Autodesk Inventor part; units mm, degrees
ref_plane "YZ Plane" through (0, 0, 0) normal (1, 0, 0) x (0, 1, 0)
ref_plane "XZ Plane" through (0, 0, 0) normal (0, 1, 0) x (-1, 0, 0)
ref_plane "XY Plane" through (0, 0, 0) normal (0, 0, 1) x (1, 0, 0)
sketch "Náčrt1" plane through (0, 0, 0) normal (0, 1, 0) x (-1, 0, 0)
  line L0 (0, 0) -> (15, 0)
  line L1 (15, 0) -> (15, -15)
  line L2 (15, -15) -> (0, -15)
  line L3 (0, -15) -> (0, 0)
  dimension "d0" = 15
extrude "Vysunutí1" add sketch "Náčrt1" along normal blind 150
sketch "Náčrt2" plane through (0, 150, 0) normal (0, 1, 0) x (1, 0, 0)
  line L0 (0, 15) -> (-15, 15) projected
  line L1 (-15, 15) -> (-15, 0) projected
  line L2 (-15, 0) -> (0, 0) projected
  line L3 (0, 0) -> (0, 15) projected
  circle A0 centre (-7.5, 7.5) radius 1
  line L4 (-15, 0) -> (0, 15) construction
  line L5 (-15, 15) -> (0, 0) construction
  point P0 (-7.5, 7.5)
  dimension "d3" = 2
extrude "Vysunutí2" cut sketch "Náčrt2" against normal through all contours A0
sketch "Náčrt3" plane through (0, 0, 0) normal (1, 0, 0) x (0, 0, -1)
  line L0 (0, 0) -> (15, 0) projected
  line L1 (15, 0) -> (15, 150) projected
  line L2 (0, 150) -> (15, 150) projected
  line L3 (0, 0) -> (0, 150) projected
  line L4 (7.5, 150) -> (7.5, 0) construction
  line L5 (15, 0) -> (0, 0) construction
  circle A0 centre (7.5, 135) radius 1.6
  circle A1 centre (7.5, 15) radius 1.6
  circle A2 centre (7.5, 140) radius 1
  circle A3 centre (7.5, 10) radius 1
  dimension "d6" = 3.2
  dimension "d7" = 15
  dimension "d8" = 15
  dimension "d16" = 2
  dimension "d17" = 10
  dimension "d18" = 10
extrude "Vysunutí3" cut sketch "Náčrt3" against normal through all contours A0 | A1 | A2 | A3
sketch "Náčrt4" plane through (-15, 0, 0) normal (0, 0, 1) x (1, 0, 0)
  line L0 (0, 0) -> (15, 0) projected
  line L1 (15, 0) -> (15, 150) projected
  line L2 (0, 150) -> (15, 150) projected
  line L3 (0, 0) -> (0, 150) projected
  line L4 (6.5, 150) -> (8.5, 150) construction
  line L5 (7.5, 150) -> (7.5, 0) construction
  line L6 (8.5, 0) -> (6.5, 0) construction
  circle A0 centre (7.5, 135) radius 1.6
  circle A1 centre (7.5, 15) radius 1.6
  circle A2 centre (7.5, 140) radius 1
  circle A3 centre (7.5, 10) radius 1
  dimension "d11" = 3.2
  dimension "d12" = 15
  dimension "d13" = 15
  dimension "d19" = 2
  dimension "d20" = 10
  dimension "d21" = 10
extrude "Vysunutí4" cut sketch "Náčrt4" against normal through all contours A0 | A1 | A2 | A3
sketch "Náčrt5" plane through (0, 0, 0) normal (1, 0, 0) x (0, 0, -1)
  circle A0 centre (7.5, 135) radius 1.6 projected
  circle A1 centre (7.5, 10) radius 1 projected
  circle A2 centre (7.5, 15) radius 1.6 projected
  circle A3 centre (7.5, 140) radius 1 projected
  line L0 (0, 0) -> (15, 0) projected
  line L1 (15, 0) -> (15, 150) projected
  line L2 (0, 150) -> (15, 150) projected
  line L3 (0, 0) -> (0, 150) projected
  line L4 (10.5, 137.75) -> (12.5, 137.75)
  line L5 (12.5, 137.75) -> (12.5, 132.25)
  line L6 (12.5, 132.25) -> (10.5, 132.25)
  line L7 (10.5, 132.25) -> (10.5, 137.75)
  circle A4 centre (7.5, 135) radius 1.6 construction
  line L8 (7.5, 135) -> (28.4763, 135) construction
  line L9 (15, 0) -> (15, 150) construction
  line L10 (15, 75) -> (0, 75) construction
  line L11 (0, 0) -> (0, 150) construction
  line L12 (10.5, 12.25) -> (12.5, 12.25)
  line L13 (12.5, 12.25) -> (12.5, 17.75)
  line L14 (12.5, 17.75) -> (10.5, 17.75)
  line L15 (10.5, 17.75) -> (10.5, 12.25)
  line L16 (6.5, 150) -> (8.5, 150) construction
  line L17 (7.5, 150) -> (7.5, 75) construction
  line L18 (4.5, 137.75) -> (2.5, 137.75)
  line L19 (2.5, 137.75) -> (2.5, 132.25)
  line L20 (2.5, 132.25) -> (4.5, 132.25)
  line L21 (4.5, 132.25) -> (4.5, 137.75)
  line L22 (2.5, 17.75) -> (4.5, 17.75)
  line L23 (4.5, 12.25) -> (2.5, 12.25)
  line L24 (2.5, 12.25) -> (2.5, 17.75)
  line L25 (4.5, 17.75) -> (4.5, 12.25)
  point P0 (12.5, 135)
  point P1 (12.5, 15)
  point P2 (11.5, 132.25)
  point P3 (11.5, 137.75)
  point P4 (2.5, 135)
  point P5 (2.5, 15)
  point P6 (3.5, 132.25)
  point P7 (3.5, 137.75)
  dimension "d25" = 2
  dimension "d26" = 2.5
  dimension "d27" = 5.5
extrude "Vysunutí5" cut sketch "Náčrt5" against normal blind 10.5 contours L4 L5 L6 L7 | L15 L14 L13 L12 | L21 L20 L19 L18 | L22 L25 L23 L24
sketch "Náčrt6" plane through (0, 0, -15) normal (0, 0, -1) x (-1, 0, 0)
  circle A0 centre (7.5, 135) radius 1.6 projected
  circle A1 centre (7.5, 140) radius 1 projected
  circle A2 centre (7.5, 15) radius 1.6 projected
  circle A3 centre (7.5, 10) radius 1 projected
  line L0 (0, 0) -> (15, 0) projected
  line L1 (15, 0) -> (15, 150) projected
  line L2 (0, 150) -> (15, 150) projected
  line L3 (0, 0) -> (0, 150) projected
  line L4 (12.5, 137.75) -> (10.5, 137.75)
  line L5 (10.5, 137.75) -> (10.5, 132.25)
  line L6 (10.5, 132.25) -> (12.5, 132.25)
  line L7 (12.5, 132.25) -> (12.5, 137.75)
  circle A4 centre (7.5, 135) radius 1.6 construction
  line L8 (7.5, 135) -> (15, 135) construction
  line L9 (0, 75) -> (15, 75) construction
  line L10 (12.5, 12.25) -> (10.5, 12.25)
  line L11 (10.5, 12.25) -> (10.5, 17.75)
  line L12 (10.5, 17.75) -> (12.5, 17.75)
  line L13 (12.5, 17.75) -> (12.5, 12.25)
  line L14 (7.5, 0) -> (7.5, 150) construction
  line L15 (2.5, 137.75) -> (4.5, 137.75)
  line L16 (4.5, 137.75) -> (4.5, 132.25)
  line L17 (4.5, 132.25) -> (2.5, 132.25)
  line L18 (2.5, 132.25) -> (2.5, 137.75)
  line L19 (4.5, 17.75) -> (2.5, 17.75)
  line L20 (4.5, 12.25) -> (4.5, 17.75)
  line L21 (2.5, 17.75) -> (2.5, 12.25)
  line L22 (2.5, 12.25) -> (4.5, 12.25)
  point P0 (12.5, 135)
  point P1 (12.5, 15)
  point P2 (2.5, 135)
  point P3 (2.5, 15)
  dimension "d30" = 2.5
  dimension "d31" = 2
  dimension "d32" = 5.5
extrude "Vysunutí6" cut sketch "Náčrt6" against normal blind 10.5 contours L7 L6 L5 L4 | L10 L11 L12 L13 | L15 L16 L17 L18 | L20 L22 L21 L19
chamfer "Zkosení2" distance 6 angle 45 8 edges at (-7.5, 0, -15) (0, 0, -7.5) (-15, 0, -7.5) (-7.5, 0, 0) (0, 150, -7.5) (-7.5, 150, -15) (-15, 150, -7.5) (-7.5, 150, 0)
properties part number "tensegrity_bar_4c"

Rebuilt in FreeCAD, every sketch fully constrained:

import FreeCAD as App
import Part
import Sketcher

V = App.Vector
Q = App.Units.Quantity


def edges_at(feature, points):
    """Names of the edges that pass closest to the given points."""
    edges = feature.Shape.Edges
    near = lambda p: min(range(len(edges)), key=lambda i: edges[i].distToShape(Part.Vertex(*p))[0])
    return sorted({f"Edge{near(p) + 1}" for p in points})


def add_polygon(sketch, points):
    """Adds a closed chain of lines whose ends are joined by coincident constraints."""
    first, n = sketch.GeometryCount, len(points)
    for a, b in zip(points, points[1:] + points[:1]):
        sketch.addGeometry(Part.LineSegment(App.Vector(*a, 0), App.Vector(*b, 0)), False)
    for i in range(n):
        sketch.addConstraint(Sketcher.Constraint("Coincident", first + i, 2, first + (i + 1) % n, 1))

doc = App.newDocument("Part")
body = doc.addObject("PartDesign::Body", "Body")

# Sketch on XZ plane
sketch1 = body.newObject("Sketcher::SketchObject", "Sketch")
sketch1.AttachmentSupport = (doc.getObject("XZ_Plane"), [""])
sketch1.MapMode = "FlatFace"
add_polygon(sketch1, [(-15, 0), (0, 0), (0, -15), (-15, -15)])  # lines 0-3
sketch1.addConstraint(Sketcher.Constraint("Horizontal", 0))
sketch1.addConstraint(Sketcher.Constraint("Vertical", 1))
sketch1.addConstraint(Sketcher.Constraint("Horizontal", 2))
sketch1.addConstraint(Sketcher.Constraint("Vertical", 3))
sketch1.addConstraint(Sketcher.Constraint("Coincident", 0, 2, -1, 1))
sketch1.addConstraint(Sketcher.Constraint("Equal", 2, 1))
sketch1.addConstraint(Sketcher.Constraint("DistanceX", 0, 1, 0, 2, Q("15 mm")))
pad1 = body.newObject("PartDesign::Pad", "Pad")
pad1.Profile = sketch1
pad1.Length = 150
pad1.Reversed = True

# Sketch on XZ plane
sketch2 = body.newObject("Sketcher::SketchObject", "Sketch001")
sketch2.AttachmentSupport = (doc.getObject("XZ_Plane"), [""])
sketch2.MapMode = "FlatFace"
sketch2.AttachmentOffset = App.Placement(V(0, 0, -150), App.Rotation())
sketch2.addGeometry(Part.Circle(V(-7.5, -7.5, 0), V(0, 0, 1), 1), False)
sketch2.addConstraint(Sketcher.Constraint("Diameter", 0, Q("2 mm")))
sketch2.addConstraint(Sketcher.Constraint("DistanceX", 0, 3, -1, 1, Q("7.5 mm")))
sketch2.addConstraint(Sketcher.Constraint("DistanceY", 0, 3, -1, 1, Q("7.5 mm")))
pocket1 = body.newObject("PartDesign::Pocket", "Pocket")
pocket1.Profile = sketch2
pocket1.Type = "ThroughAll"
pocket1.Reversed = True

# Sketch on YZ plane
sketch3 = body.newObject("Sketcher::SketchObject", "Sketch002")
sketch3.AttachmentSupport = (doc.getObject("YZ_Plane"), [""])
sketch3.MapMode = "FlatFace"
sketch3.addGeometry(Part.Circle(V(135, -7.5, 0), V(0, 0, 1), 1.6), False)
sketch3.addGeometry(Part.Circle(V(15, -7.5, 0), V(0, 0, 1), 1.6), False)
sketch3.addGeometry(Part.Circle(V(140, -7.5, 0), V(0, 0, 1), 1), False)
sketch3.addGeometry(Part.Circle(V(10, -7.5, 0), V(0, 0, 1), 1), False)
sketch3.addConstraint(Sketcher.Constraint("Equal", 0, 1))
sketch3.addConstraint(Sketcher.Constraint("Equal", 2, 3))
sketch3.addConstraint(Sketcher.Constraint("Horizontal", 0, 3, 1, 3))
sketch3.addConstraint(Sketcher.Constraint("Horizontal", 1, 3, 2, 3))
sketch3.addConstraint(Sketcher.Constraint("Horizontal", 2, 3, 3, 3))
sketch3.addConstraint(Sketcher.Constraint("Diameter", 2, Q("2 mm")))
sketch3.addConstraint(Sketcher.Constraint("Diameter", 0, Q("3.2 mm")))
sketch3.addConstraint(Sketcher.Constraint("DistanceX", -1, 1, 1, 3, Q("15 mm")))
sketch3.addConstraint(Sketcher.Constraint("DistanceX", -1, 1, 3, 3, Q("10 mm")))
sketch3.addConstraint(Sketcher.Constraint("DistanceX", -1, 1, 0, 3, Q("135 mm")))
sketch3.addConstraint(Sketcher.Constraint("DistanceX", -1, 1, 2, 3, Q("140 mm")))
sketch3.addConstraint(Sketcher.Constraint("DistanceY", 0, 3, -1, 1, Q("7.5 mm")))
pocket2 = body.newObject("PartDesign::Pocket", "Pocket001")
pocket2.Profile = sketch3
pocket2.Type = "ThroughAll"

# Sketch on XY plane
sketch4 = body.newObject("Sketcher::SketchObject", "Sketch003")
sketch4.AttachmentSupport = (doc.getObject("XY_Plane"), [""])
sketch4.MapMode = "FlatFace"
sketch4.addGeometry(Part.Circle(V(-7.5, 135, 0), V(0, 0, 1), 1.6), False)
sketch4.addGeometry(Part.Circle(V(-7.5, 15, 0), V(0, 0, 1), 1.6), False)
sketch4.addGeometry(Part.Circle(V(-7.5, 140, 0), V(0, 0, 1), 1), False)
sketch4.addGeometry(Part.Circle(V(-7.5, 10, 0), V(0, 0, 1), 1), False)
sketch4.addConstraint(Sketcher.Constraint("Equal", 0, 1))
sketch4.addConstraint(Sketcher.Constraint("Equal", 2, 3))
sketch4.addConstraint(Sketcher.Constraint("Vertical", 0, 3, 1, 3))
sketch4.addConstraint(Sketcher.Constraint("Vertical", 1, 3, 2, 3))
sketch4.addConstraint(Sketcher.Constraint("Vertical", 2, 3, 3, 3))
sketch4.addConstraint(Sketcher.Constraint("Diameter", 2, Q("2 mm")))
sketch4.addConstraint(Sketcher.Constraint("Diameter", 0, Q("3.2 mm")))
sketch4.addConstraint(Sketcher.Constraint("DistanceY", -1, 1, 1, 3, Q("15 mm")))
sketch4.addConstraint(Sketcher.Constraint("DistanceY", -1, 1, 3, 3, Q("10 mm")))
sketch4.addConstraint(Sketcher.Constraint("DistanceY", -1, 1, 0, 3, Q("135 mm")))
sketch4.addConstraint(Sketcher.Constraint("DistanceY", -1, 1, 2, 3, Q("140 mm")))
sketch4.addConstraint(Sketcher.Constraint("DistanceX", 0, 3, -1, 1, Q("7.5 mm")))
pocket3 = body.newObject("PartDesign::Pocket", "Pocket002")
pocket3.Profile = sketch4
pocket3.Type = "ThroughAll"

# Sketch on YZ plane
sketch5 = body.newObject("Sketcher::SketchObject", "Sketch004")
sketch5.AttachmentSupport = (doc.getObject("YZ_Plane"), [""])
sketch5.MapMode = "FlatFace"
add_polygon(sketch5, [(137.8, -12.5), (137.8, -10.5), (132.2, -10.5), (132.2, -12.5)])  # lines 0-3
add_polygon(sketch5, [(17.8, -10.5), (12.2, -10.5), (12.2, -12.5), (17.8, -12.5)])  # lines 4-7
add_polygon(sketch5, [(132.2, -4.5), (137.8, -4.5), (137.8, -2.5), (132.2, -2.5)])  # lines 8-11
add_polygon(sketch5, [(17.8, -4.5), (17.8, -2.5), (12.2, -2.5), (12.2, -4.5)])  # lines 12-15
sketch5.addConstraint(Sketcher.Constraint("Vertical", 0))
sketch5.addConstraint(Sketcher.Constraint("Horizontal", 1))
sketch5.addConstraint(Sketcher.Constraint("Vertical", 2))
sketch5.addConstraint(Sketcher.Constraint("Horizontal", 3))
sketch5.addConstraint(Sketcher.Constraint("Horizontal", 4))
sketch5.addConstraint(Sketcher.Constraint("Vertical", 5))
sketch5.addConstraint(Sketcher.Constraint("Horizontal", 6))
sketch5.addConstraint(Sketcher.Constraint("Vertical", 7))
sketch5.addConstraint(Sketcher.Constraint("Horizontal", 8))
sketch5.addConstraint(Sketcher.Constraint("Vertical", 9))
sketch5.addConstraint(Sketcher.Constraint("Horizontal", 10))
sketch5.addConstraint(Sketcher.Constraint("Vertical", 11))
sketch5.addConstraint(Sketcher.Constraint("Vertical", 12))
sketch5.addConstraint(Sketcher.Constraint("Horizontal", 13))
sketch5.addConstraint(Sketcher.Constraint("Vertical", 14))
sketch5.addConstraint(Sketcher.Constraint("Horizontal", 15))
sketch5.addConstraint(Sketcher.Constraint("Horizontal", 1, 2, 4, 2))
sketch5.addConstraint(Sketcher.Constraint("Horizontal", 3, 2, 5, 2))
sketch5.addConstraint(Sketcher.Constraint("Horizontal", 10, 2, 12, 2))
sketch5.addConstraint(Sketcher.Constraint("Horizontal", 11, 2, 14, 2))
sketch5.addConstraint(Sketcher.Constraint("Vertical", 3, 2, 8, 2))
sketch5.addConstraint(Sketcher.Constraint("Vertical", 2, 2, 10, 2))
sketch5.addConstraint(Sketcher.Constraint("Vertical", 7, 2, 12, 2))
sketch5.addConstraint(Sketcher.Constraint("Vertical", 5, 2, 13, 2))
sketch5.addConstraint(Sketcher.Constraint("Equal", 3, 4))
sketch5.addConstraint(Sketcher.Constraint("Equal", 7, 9))
sketch5.addConstraint(Sketcher.Constraint("DistanceY", 0, 1, 0, 2, Q("2 mm")))
sketch5.addConstraint(Sketcher.Constraint("DistanceX", 1, 2, 1, 1, Q("5.5 mm")))
sketch5.addConstraint(Sketcher.Constraint("DistanceY", 9, 2, -1, 1, Q("2.5 mm")))
sketch5.addConstraint(Sketcher.Constraint("DistanceX", 4, 2, 1, 2, Q("120 mm")))
sketch5.addConstraint(Sketcher.Constraint("DistanceY", 0, 2, 8, 2, Q("6 mm")))
sketch5.addConstraint(Sketcher.Constraint("DistanceX", -1, 1, 0, 2, Q("137.75 mm")))
pocket4 = body.newObject("PartDesign::Pocket", "Pocket003")
pocket4.Profile = sketch5
pocket4.Length = 10.5

# Sketch on XY plane
sketch6 = body.newObject("Sketcher::SketchObject", "Sketch005")
sketch6.AttachmentSupport = (doc.getObject("XY_Plane"), [""])
sketch6.MapMode = "FlatFace"
sketch6.AttachmentOffset = App.Placement(V(0, 0, -15), App.Rotation())
add_polygon(sketch6, [(-12.5, 132.2), (-12.5, 137.8), (-10.5, 137.8), (-10.5, 132.2)])  # lines 0-3
add_polygon(sketch6, [(-10.5, 12.2), (-12.5, 12.2), (-12.5, 17.8), (-10.5, 17.8)])  # lines 4-7
add_polygon(sketch6, [(-4.5, 137.8), (-2.5, 137.8), (-2.5, 132.2), (-4.5, 132.2)])  # lines 8-11
add_polygon(sketch6, [(-4.5, 12.2), (-4.5, 17.8), (-2.5, 17.8), (-2.5, 12.2)])  # lines 12-15
sketch6.addConstraint(Sketcher.Constraint("Vertical", 0))
sketch6.addConstraint(Sketcher.Constraint("Horizontal", 1))
sketch6.addConstraint(Sketcher.Constraint("Vertical", 2))
sketch6.addConstraint(Sketcher.Constraint("Horizontal", 3))
sketch6.addConstraint(Sketcher.Constraint("Horizontal", 4))
sketch6.addConstraint(Sketcher.Constraint("Vertical", 5))
sketch6.addConstraint(Sketcher.Constraint("Horizontal", 6))
sketch6.addConstraint(Sketcher.Constraint("Vertical", 7))
sketch6.addConstraint(Sketcher.Constraint("Horizontal", 8))
sketch6.addConstraint(Sketcher.Constraint("Vertical", 9))
sketch6.addConstraint(Sketcher.Constraint("Horizontal", 10))
sketch6.addConstraint(Sketcher.Constraint("Vertical", 11))
sketch6.addConstraint(Sketcher.Constraint("Vertical", 12))
sketch6.addConstraint(Sketcher.Constraint("Horizontal", 13))
sketch6.addConstraint(Sketcher.Constraint("Vertical", 14))
sketch6.addConstraint(Sketcher.Constraint("Horizontal", 15))
sketch6.addConstraint(Sketcher.Constraint("Horizontal", 1, 2, 8, 2))
sketch6.addConstraint(Sketcher.Constraint("Horizontal", 3, 2, 9, 2))
sketch6.addConstraint(Sketcher.Constraint("Horizontal", 6, 2, 12, 2))
sketch6.addConstraint(Sketcher.Constraint("Horizontal", 7, 2, 14, 2))
sketch6.addConstraint(Sketcher.Constraint("Vertical", 3, 2, 4, 2))
sketch6.addConstraint(Sketcher.Constraint("Vertical", 2, 2, 6, 2))
sketch6.addConstraint(Sketcher.Constraint("Vertical", 11, 2, 12, 2))
sketch6.addConstraint(Sketcher.Constraint("Vertical", 9, 2, 13, 2))
sketch6.addConstraint(Sketcher.Constraint("Equal", 6, 8))
sketch6.addConstraint(Sketcher.Constraint("Equal", 2, 5))
sketch6.addConstraint(Sketcher.Constraint("DistanceX", 1, 1, 1, 2, Q("2 mm")))
sketch6.addConstraint(Sketcher.Constraint("DistanceY", 0, 1, 0, 2, Q("5.5 mm")))
sketch6.addConstraint(Sketcher.Constraint("DistanceX", 8, 2, -1, 1, Q("2.5 mm")))
sketch6.addConstraint(Sketcher.Constraint("DistanceY", 4, 2, 3, 2, Q("120 mm")))
sketch6.addConstraint(Sketcher.Constraint("DistanceX", 1, 2, 8, 2, Q("8 mm")))
sketch6.addConstraint(Sketcher.Constraint("DistanceY", -1, 1, 0, 2, Q("137.75 mm")))
pocket5 = body.newObject("PartDesign::Pocket", "Pocket004")
pocket5.Profile = sketch6
pocket5.Length = 10.5
pocket5.Reversed = True
doc.recompute()

chamfer = body.newObject("PartDesign::Chamfer", "Chamfer")
chamfer.Base = (pocket5, edges_at(pocket5, [
    (-7.5, 0, -15),
    (0, 0, -7.5),
    (-15, 0, -7.5),
    (-7.5, 0, 0),
    (0, 150, -7.5),
    (-7.5, 150, -15),
    (-15, 150, -7.5),
    (-7.5, 150, 0),
]))
chamfer.Size = 6

doc.recompute()
